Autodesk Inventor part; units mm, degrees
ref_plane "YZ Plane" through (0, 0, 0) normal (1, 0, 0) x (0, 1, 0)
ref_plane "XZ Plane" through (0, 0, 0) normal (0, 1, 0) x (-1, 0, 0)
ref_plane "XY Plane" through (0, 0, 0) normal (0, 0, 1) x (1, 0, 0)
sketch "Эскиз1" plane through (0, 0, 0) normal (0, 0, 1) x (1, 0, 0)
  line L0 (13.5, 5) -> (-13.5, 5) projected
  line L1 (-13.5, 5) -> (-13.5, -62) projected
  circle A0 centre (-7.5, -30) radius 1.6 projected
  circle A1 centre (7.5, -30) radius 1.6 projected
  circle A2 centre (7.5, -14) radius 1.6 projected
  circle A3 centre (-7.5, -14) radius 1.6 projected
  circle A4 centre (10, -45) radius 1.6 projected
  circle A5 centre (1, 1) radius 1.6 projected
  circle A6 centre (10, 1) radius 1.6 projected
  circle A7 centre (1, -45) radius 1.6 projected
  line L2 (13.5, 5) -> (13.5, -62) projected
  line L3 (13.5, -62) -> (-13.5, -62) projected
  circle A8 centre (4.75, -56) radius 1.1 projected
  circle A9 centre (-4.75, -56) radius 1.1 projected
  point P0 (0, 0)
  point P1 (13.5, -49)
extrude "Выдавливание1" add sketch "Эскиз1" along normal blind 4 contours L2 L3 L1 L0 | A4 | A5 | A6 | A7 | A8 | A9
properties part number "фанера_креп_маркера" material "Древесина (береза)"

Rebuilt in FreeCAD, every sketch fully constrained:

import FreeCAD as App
import Part
import Sketcher
Q = App.Units.Quantity


def add_polygon(sketch, points):
    """Adds a closed chain of lines whose ends are joined by coincident constraints."""
    first, n = sketch.GeometryCount, len(points)
    for a, b in zip(points, points[1:] + points[:1]):
        sketch.addGeometry(Part.LineSegment(App.Vector(*a, 0), App.Vector(*b, 0)), False)
    for i in range(n):
        sketch.addConstraint(Sketcher.Constraint("Coincident", first + i, 2, first + (i + 1) % n, 1))

doc = App.newDocument("Part")
params = doc.addObject("Spreadsheet::Sheet", "Params")
for row, (alias, value) in enumerate([
    ("sketch1_diameter", "3.2 mm"),
    ("sketch1_width", "27 mm"),
    ("sketch1_height", "67 mm"),
    ("pad1_length", "4 mm"),
], start=1):
    params.set(f"A{row}", alias)
    params.set(f"B{row}", "=" + value)
    params.setAlias(f"B{row}", alias)

body = doc.addObject("PartDesign::Body", "Body")

sketch1 = doc.addObject("Sketcher::SketchObject", "Sketch")
body.addObject(sketch1)
sketch1.AttachmentSupport = (doc.XY_Plane, [""])
sketch1.MapMode = "FlatFace"
add_polygon(sketch1, [(13.5, -62), (13.5, 5), (-13.5, 5), (-13.5, -62)])
sketch1.addGeometry(Part.Circle(App.Vector(-7.5, -30, 0), App.Vector(0, 0, 1), 1.6), False)
sketch1.addGeometry(Part.Circle(App.Vector(7.5, -30, 0), App.Vector(0, 0, 1), 1.6), False)
sketch1.addGeometry(Part.Circle(App.Vector(-7.5, -14, 0), App.Vector(0, 0, 1), 1.6), False)
sketch1.addGeometry(Part.Circle(App.Vector(7.5, -14, 0), App.Vector(0, 0, 1), 1.6), False)
sketch1.addConstraint([
    Sketcher.Constraint("Vertical", 0),
    Sketcher.Constraint("Horizontal", 1),
    Sketcher.Constraint("Vertical", 2),
    Sketcher.Constraint("Horizontal", 3),
    Sketcher.Constraint("Equal", 4, 5),
    Sketcher.Constraint("Equal", 5, 6),
    Sketcher.Constraint("Equal", 6, 7),
    Sketcher.Constraint("Symmetric", 4, 3, 5, 3, -2),
    Sketcher.Constraint("Symmetric", 6, 3, 7, 3, -2),
    Sketcher.Constraint("Vertical", 4, 3, 6, 3),
    Sketcher.Constraint("Diameter", 4, Q("3.2 mm")),
    Sketcher.Constraint("DistanceX", 1, 2, 1, 1, Q("27 mm")),
    Sketcher.Constraint("DistanceY", 0, 1, 0, 2, Q("67 mm")),
    Sketcher.Constraint("DistanceY", 4, 3, -1, 1, Q("30 mm")),
    Sketcher.Constraint("DistanceY", 6, 3, -1, 1, Q("14 mm")),
    Sketcher.Constraint("DistanceY", -1, 1, 0, 2, Q("5 mm")),
    Sketcher.Constraint("DistanceX", 4, 3, 5, 3, Q("15 mm")),
    Sketcher.Constraint("DistanceX", 7, 3, 0, 2, Q("6 mm")),
])
sketch1.setExpression("Constraints[14]", "Params.sketch1_diameter")
sketch1.setExpression("Constraints[15]", "Params.sketch1_width")
sketch1.setExpression("Constraints[16]", "Params.sketch1_height")
pad1 = doc.addObject("PartDesign::Pad", "Pad")
body.addObject(pad1)
pad1.Profile = sketch1
pad1.setExpression("Length", "Params.pad1_length")

doc.recompute()
